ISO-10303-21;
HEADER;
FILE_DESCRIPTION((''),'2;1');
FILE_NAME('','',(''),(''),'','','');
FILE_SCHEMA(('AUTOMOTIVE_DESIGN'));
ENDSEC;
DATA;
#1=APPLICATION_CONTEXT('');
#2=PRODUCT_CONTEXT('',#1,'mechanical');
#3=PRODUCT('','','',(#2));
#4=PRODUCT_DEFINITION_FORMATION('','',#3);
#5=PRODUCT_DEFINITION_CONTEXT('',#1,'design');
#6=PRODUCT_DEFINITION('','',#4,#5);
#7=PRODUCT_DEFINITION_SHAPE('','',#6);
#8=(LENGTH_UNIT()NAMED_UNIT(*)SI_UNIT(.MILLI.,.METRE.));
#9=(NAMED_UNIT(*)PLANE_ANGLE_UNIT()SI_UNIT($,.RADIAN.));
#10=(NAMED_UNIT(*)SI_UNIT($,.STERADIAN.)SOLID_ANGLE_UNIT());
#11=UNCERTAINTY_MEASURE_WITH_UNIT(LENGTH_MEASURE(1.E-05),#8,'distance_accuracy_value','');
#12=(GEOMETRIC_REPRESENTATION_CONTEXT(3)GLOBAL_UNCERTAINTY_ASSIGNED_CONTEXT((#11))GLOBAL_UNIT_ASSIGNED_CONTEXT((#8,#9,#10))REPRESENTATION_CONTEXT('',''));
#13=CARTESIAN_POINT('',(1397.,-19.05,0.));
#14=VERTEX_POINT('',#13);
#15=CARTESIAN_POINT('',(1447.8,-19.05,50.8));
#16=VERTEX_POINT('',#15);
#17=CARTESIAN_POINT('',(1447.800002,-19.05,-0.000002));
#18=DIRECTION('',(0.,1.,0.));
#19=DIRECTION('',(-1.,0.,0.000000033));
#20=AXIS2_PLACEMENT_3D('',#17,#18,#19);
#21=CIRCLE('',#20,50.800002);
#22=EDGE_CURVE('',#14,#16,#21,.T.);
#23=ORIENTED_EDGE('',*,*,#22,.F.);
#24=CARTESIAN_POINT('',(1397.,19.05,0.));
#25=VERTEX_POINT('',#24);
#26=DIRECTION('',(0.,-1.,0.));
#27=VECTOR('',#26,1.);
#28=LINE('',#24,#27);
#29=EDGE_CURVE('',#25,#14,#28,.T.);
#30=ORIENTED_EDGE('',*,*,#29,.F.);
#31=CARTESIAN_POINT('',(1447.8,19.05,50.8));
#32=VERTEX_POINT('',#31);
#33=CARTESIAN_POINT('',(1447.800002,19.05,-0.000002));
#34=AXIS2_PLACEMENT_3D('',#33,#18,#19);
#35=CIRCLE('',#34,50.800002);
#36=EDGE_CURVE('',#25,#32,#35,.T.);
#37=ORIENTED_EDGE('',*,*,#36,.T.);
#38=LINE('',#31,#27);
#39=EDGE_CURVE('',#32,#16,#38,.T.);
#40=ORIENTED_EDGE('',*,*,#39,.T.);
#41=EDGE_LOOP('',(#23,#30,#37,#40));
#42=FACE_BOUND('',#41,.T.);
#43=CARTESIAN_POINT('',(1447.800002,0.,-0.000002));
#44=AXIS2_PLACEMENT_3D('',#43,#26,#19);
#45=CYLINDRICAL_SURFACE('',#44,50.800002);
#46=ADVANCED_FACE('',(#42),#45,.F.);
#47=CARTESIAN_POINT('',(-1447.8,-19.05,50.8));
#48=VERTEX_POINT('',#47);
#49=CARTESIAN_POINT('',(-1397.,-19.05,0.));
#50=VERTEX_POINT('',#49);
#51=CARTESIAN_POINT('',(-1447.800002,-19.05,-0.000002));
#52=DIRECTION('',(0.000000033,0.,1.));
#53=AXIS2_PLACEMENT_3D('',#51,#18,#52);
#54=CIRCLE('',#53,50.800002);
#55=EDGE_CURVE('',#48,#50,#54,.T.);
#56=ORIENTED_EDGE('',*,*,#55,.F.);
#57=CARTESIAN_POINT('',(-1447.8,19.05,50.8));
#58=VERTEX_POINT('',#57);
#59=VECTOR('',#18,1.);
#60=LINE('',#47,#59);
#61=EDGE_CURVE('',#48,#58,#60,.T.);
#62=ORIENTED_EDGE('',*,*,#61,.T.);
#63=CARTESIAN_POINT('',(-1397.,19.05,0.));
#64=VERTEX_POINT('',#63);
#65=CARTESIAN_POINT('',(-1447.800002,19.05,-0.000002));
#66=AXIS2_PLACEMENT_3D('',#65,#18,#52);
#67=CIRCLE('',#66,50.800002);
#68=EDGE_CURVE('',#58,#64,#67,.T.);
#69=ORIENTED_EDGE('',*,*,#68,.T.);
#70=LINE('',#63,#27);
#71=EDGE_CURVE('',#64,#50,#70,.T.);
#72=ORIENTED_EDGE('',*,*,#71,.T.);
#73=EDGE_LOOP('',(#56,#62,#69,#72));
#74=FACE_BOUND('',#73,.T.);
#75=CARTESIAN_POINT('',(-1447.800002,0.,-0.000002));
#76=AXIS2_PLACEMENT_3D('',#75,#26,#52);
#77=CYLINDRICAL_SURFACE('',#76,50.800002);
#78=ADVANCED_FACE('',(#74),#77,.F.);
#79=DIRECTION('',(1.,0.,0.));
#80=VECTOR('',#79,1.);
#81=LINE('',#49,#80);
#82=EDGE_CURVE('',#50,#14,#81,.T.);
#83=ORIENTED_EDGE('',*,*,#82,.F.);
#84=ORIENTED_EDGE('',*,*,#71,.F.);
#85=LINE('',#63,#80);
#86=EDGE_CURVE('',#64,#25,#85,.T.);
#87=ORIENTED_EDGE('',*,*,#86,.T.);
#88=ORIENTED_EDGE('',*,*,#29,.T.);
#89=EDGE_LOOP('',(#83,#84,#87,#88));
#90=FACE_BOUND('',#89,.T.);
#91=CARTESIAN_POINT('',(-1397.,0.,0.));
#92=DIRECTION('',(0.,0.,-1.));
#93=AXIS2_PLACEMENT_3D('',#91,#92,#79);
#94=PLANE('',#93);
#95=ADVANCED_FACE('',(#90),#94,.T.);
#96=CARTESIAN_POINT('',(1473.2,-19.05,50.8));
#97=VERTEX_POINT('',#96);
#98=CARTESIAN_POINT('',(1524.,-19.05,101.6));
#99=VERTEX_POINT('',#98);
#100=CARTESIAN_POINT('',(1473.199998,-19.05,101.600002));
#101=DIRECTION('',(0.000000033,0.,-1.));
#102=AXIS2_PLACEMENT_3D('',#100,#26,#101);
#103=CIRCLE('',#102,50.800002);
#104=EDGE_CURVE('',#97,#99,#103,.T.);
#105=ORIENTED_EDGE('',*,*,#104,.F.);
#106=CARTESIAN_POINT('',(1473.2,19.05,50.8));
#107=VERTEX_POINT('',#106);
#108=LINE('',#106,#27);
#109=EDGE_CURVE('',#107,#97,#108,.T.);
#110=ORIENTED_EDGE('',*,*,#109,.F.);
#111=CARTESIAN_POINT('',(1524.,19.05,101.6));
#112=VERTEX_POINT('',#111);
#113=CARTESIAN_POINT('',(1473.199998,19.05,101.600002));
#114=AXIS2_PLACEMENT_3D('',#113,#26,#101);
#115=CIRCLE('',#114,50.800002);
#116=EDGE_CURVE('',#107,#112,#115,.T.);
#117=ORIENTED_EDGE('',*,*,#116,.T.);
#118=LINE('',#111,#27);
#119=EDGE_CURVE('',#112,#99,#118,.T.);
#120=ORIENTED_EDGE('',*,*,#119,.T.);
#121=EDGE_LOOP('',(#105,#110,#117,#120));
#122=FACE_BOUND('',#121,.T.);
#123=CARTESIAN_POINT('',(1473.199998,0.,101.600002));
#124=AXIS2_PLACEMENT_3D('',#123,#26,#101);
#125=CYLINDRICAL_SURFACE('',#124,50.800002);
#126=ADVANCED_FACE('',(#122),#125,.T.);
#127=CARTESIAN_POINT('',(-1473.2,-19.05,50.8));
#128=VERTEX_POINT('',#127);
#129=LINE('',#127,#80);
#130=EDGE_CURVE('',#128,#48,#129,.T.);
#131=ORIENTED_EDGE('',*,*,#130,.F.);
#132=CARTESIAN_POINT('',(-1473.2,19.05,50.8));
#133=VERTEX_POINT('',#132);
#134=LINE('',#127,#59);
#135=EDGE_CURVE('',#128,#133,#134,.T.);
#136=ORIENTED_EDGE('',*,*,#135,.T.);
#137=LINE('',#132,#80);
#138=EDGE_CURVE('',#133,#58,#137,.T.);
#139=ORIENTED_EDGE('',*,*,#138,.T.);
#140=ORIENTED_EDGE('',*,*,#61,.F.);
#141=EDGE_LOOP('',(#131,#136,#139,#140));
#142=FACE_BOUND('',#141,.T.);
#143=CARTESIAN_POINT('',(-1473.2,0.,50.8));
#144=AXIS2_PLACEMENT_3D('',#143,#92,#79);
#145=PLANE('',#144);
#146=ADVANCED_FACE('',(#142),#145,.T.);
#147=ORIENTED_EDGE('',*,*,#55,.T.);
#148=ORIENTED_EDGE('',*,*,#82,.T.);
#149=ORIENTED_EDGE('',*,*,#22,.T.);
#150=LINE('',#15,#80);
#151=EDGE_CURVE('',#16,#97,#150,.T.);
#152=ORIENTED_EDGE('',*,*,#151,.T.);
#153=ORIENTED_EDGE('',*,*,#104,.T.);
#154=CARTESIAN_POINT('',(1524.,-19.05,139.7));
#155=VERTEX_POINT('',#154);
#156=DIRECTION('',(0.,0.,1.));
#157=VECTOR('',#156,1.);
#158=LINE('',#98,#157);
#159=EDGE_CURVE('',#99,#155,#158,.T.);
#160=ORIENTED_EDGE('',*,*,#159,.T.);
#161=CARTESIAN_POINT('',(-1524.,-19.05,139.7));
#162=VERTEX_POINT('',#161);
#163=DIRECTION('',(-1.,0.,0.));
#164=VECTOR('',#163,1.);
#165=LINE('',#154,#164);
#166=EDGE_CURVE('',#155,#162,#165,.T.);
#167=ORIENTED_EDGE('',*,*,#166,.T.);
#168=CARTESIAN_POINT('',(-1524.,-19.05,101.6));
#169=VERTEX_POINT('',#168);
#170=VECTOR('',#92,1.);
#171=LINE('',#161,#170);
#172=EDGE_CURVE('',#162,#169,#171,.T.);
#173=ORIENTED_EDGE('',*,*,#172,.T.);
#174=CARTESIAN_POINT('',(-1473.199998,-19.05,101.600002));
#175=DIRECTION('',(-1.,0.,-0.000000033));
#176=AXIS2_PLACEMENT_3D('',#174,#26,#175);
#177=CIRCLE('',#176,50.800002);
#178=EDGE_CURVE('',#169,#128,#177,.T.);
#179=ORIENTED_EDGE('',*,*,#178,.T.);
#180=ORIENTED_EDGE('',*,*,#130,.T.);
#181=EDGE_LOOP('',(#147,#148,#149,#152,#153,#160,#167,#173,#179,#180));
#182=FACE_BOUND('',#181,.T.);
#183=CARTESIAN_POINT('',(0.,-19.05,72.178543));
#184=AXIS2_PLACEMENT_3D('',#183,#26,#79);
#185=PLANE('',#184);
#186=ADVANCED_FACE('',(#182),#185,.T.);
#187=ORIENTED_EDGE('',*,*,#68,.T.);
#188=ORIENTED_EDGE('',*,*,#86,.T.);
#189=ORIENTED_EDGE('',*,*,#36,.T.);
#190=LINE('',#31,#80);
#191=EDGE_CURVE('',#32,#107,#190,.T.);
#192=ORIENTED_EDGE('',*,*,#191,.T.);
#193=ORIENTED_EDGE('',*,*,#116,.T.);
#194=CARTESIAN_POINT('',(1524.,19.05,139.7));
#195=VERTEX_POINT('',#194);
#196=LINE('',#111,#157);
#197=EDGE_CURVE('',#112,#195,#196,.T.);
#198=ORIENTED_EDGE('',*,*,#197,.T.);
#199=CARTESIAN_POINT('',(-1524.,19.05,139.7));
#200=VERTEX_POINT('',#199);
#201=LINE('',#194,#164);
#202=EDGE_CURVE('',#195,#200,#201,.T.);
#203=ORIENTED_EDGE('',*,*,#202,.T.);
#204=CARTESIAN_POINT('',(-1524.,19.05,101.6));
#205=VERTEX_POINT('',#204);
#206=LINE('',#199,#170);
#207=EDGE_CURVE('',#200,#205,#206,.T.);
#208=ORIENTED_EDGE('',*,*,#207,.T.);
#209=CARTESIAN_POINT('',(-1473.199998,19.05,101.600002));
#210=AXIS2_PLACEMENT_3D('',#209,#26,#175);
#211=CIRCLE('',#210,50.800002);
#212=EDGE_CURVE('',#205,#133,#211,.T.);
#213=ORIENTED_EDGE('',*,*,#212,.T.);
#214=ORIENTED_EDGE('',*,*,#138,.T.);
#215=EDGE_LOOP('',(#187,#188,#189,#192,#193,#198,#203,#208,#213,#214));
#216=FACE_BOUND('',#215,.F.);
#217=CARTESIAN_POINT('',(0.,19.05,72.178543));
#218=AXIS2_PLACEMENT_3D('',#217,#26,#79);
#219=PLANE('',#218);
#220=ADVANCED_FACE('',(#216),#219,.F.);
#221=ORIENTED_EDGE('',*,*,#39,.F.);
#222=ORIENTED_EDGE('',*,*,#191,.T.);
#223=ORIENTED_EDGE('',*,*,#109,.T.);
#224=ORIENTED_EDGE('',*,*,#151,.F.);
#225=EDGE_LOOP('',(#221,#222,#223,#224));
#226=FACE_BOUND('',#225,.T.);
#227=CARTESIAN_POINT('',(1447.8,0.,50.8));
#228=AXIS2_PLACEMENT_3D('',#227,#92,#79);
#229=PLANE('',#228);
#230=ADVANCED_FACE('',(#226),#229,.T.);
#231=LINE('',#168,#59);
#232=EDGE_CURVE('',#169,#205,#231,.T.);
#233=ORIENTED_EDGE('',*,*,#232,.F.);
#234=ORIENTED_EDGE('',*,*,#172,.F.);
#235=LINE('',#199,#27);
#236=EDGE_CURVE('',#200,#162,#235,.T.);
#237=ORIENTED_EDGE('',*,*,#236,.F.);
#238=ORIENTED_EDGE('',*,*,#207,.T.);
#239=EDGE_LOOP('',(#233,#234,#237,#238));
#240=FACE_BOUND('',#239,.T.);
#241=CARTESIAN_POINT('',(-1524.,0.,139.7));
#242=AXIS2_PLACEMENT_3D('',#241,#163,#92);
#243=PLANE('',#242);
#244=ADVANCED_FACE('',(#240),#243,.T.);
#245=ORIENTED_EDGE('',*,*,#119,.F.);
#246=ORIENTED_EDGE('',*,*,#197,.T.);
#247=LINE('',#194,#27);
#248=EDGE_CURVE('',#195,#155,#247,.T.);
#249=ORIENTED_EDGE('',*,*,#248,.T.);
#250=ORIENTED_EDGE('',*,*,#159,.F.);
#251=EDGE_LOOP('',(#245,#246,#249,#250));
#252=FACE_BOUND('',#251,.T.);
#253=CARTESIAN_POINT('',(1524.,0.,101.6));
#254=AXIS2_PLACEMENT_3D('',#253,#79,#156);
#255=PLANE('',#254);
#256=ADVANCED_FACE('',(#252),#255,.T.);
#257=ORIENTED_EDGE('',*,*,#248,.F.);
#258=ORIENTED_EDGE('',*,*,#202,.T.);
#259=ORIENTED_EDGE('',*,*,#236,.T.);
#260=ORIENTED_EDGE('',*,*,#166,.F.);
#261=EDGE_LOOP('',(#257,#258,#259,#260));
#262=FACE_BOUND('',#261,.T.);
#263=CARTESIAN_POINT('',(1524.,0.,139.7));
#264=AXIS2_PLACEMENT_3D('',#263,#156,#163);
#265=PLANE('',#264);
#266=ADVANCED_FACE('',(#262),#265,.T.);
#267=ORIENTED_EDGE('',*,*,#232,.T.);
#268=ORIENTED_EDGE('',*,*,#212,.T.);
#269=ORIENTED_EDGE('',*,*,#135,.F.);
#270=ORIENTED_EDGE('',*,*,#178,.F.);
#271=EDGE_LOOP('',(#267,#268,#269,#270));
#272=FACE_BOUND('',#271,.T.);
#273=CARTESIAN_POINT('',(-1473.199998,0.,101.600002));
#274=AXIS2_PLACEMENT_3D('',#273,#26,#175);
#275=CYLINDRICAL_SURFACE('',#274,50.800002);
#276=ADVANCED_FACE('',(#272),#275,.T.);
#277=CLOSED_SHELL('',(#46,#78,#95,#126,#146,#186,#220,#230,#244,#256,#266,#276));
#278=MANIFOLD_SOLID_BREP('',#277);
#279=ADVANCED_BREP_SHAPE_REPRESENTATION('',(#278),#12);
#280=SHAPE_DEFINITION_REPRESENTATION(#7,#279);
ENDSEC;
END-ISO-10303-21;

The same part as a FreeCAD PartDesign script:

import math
import FreeCAD as App
import Part
import Sketcher

V = App.Vector
Q = App.Units.Quantity

doc = App.newDocument("Part")
body = doc.addObject("PartDesign::Body", "Body")

# Sketch on XZ plane
sketch1 = body.newObject("Sketcher::SketchObject", "Sketch")
sketch1.AttachmentSupport = (doc.getObject("XZ_Plane"), [""])
sketch1.MapMode = "FlatFace"
sketch1.addGeometry([
    Part.ArcOfCircle(Part.Circle(V(-1447.800002, -0.000002, 0), V(0, 0, 1), 50.800002), math.radians(0.000002), math.radians(89.999998)),  # 0
    Part.LineSegment(V(-1397, 0, 0), V(1397, 0, 0)),  # 1
    Part.ArcOfCircle(Part.Circle(V(1447.800002, -0.000002, 0), V(0, 0, 1), 50.800002), math.radians(90.000002), math.radians(179.999998)),  # 2
    Part.LineSegment(V(1447.8, 50.8, 0), V(1473.2, 50.8, 0)),  # 3
    Part.ArcOfCircle(Part.Circle(V(1473.199998, 101.600002, 0), V(0, 0, 1), 50.800002), math.radians(-89.999998), math.radians(-0.000002)),  # 4
    Part.LineSegment(V(1524, 101.6, 0), V(1524, 139.7, 0)),  # 5
    Part.LineSegment(V(1524, 139.7, 0), V(-1524, 139.7, 0)),  # 6
    Part.LineSegment(V(-1524, 139.7, 0), V(-1524, 101.6, 0)),  # 7
    Part.ArcOfCircle(Part.Circle(V(-1473.199998, 101.600002, 0), V(0, 0, 1), 50.800002), math.radians(-179.999998), math.radians(-90.000002)),  # 8
    Part.LineSegment(V(-1473.2, 50.8, 0), V(-1447.8, 50.8, 0)),  # 9
], False)
sketch1.addConstraint([
    Sketcher.Constraint("Coincident", 0, 1, 1, 1),
    Sketcher.Constraint("Coincident", 1, 2, 2, 2),
    Sketcher.Constraint("Tangent", 2, 1, 3, 1),
    Sketcher.Constraint("Tangent", 3, 2, 4, 1),
    Sketcher.Constraint("Tangent", 4, 2, 5, 1),
    Sketcher.Constraint("Coincident", 5, 2, 6, 1),
    Sketcher.Constraint("Coincident", 6, 2, 7, 1),
    Sketcher.Constraint("Tangent", 7, 2, 8, 1),
    Sketcher.Constraint("Tangent", 8, 2, 9, 1),
    Sketcher.Constraint("Tangent", 9, 2, 0, 2),
    Sketcher.Constraint("Horizontal", 1),
    Sketcher.Constraint("Horizontal", 3),
    Sketcher.Constraint("Vertical", 5),
    Sketcher.Constraint("Horizontal", 6),
    Sketcher.Constraint("Vertical", 7),
    Sketcher.Constraint("Horizontal", 9),
    Sketcher.Constraint("Equal", 0, 2),
    Sketcher.Constraint("Equal", 2, 4),
    Sketcher.Constraint("Equal", 4, 8),
    Sketcher.Constraint("Symmetric", 0, 3, 2, 3, -1, 1),
    Sketcher.Constraint("Symmetric", 4, 3, 8, 3, -2),
    Sketcher.Constraint("PointOnObject", 0, 1, -1),
    Sketcher.Constraint("Radius", 0, Q("2.0000001 in")),
    Sketcher.Constraint("DistanceX", 1, 1, 1, 2, Q("110 in")),
    Sketcher.Constraint("DistanceX", 3, 1, 3, 2, Q("1 in")),
    Sketcher.Constraint("DistanceY", 5, 1, 5, 2, Q("1.5 in")),
])
pad1 = body.newObject("PartDesign::Pad", "Pad")
pad1.Profile = sketch1
pad1.Length = Q("1.5 in")
pad1.Midplane = True

doc.recompute()
